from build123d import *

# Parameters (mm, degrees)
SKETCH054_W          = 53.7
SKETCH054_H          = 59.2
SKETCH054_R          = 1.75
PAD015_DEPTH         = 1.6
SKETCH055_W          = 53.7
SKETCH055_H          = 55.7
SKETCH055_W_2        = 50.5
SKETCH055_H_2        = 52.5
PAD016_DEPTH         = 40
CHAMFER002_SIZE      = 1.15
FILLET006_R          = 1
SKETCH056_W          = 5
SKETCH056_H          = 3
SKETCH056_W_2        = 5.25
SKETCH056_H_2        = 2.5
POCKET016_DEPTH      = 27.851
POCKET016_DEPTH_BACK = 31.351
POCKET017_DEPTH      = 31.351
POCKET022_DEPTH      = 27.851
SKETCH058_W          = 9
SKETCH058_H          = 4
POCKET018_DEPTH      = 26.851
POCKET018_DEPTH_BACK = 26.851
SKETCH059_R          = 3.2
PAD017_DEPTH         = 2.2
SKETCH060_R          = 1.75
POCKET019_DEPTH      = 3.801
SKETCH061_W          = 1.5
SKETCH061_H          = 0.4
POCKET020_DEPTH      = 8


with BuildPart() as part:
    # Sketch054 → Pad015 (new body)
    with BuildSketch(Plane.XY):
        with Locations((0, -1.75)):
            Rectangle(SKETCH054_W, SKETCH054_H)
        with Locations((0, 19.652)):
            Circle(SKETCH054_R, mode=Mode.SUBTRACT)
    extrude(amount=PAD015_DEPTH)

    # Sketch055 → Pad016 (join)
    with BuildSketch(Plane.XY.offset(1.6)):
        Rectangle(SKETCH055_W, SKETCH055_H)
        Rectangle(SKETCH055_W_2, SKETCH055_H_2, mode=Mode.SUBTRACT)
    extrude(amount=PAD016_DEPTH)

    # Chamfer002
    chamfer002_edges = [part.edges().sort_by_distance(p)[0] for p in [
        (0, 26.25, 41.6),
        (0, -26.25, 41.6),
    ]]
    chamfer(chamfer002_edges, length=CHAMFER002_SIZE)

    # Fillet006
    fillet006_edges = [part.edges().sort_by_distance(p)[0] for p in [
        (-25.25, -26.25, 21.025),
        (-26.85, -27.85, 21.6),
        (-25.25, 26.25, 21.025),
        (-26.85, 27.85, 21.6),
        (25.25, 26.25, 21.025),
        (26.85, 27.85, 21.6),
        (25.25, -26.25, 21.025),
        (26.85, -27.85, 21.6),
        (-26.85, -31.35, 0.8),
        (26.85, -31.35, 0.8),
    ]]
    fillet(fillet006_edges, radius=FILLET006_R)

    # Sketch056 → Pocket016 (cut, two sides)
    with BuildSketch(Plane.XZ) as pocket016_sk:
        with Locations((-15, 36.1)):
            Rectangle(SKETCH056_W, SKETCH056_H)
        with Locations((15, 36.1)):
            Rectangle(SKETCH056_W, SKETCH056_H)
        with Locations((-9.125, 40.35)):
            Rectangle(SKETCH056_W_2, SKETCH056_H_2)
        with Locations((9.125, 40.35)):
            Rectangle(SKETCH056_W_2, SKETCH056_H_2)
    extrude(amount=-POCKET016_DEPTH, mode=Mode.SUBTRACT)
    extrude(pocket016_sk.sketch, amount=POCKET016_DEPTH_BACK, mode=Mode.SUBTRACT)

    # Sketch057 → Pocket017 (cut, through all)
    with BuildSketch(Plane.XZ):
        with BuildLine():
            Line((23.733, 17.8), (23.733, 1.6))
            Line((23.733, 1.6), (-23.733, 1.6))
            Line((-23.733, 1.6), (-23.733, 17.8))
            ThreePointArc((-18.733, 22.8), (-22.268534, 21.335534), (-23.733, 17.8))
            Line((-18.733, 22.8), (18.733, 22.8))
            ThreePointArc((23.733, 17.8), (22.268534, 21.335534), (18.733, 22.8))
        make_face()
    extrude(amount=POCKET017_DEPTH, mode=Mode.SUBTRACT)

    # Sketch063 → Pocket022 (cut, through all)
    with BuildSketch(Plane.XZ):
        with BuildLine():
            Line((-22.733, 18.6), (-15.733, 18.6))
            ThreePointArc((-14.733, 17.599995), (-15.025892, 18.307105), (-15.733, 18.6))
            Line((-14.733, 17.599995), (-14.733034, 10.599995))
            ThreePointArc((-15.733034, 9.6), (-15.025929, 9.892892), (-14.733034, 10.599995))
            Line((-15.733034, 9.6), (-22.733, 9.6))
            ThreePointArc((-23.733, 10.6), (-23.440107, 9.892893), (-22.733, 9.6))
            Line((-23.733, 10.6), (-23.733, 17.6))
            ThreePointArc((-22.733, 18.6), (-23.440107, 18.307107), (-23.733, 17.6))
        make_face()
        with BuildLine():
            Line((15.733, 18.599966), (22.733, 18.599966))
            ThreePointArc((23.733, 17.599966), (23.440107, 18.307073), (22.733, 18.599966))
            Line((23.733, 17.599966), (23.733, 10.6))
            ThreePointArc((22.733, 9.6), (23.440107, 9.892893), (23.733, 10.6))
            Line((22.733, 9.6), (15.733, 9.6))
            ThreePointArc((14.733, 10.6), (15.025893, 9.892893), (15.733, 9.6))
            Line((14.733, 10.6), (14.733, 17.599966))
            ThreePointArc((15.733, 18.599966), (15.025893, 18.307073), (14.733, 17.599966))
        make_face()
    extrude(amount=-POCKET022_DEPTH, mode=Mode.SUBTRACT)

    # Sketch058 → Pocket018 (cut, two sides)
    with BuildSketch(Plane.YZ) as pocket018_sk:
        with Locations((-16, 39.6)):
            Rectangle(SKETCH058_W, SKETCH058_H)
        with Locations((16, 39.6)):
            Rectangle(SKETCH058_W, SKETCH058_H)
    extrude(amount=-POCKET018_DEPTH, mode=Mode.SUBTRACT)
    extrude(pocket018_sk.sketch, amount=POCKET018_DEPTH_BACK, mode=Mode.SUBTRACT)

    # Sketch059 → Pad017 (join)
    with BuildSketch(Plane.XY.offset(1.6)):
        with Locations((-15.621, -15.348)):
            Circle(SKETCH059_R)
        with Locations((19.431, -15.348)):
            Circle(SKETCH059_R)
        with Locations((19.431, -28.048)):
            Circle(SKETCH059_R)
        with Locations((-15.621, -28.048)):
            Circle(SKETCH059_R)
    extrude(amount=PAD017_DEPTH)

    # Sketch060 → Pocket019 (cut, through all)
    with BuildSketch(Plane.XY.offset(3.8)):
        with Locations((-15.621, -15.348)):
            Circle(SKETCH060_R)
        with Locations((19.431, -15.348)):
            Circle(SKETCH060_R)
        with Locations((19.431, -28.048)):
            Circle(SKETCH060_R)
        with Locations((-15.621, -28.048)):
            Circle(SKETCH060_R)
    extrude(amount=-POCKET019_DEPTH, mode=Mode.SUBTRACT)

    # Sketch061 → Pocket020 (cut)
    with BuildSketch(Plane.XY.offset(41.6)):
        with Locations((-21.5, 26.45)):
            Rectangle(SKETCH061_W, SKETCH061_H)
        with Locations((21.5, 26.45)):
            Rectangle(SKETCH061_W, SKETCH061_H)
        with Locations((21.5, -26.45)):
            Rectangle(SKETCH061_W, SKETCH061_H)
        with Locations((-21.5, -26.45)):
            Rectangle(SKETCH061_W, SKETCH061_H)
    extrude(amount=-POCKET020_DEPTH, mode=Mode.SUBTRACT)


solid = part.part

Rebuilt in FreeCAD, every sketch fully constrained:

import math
import FreeCAD as App
import Part
import Sketcher

V = App.Vector


def edges_at(feature, points):
    """Names of the edges that pass closest to the given points."""
    edges = feature.Shape.Edges
    near = lambda p: min(range(len(edges)), key=lambda i: edges[i].distToShape(Part.Vertex(*p))[0])
    return sorted({f"Edge{near(p) + 1}" for p in points})

doc = App.newDocument("Part")
body = doc.addObject("PartDesign::Body", "Body")

sketch1 = body.newObject("Sketcher::SketchObject", "Sketch")
sketch1.AttachmentSupport = (doc.getObject("XY_Plane"), [""])
sketch1.MapMode = "FlatFace"
sketch1.addGeometry([
    Part.LineSegment(V(-26.85, 27.85, 0), V(-26.85, -31.35, 0)),
    Part.LineSegment(V(-26.85, -31.35, 0), V(26.85, -31.35, 0)),
    Part.LineSegment(V(26.85, -31.35, 0), V(26.85, 27.85, 0)),
    Part.LineSegment(V(26.85, 27.85, 0), V(-26.85, 27.85, 0)),
    Part.Circle(V(0, 19.652, 0), V(0, 0, 1), 1.75),
], False)
sketch1.addConstraint([
    Sketcher.Constraint("Coincident", 0, 2, 1, 1),
    Sketcher.Constraint("Coincident", 1, 2, 2, 1),
    Sketcher.Constraint("Coincident", 2, 2, 3, 1),
    Sketcher.Constraint("Coincident", 3, 2, 0, 1),
    Sketcher.Constraint("Vertical", 0),
    Sketcher.Constraint("Horizontal", 1),
    Sketcher.Constraint("Vertical", 2),
    Sketcher.Constraint("Horizontal", 3),
    Sketcher.Constraint("PointOnObject", 4, 3, -2),
    Sketcher.Constraint("Diameter", 4, 3.5),
    Sketcher.Constraint("DistanceX", 1, 1, 1, 2, 53.7),
    Sketcher.Constraint("DistanceY", 0, 2, 0, 1, 59.2),
    Sketcher.Constraint("DistanceX", 0, 2, -1, 1, 26.85),
    Sketcher.Constraint("DistanceY", 0, 2, -1, 1, 31.35),
    Sketcher.Constraint("DistanceY", -1, 1, 4, 3, 19.652),
])
pad1 = body.newObject("PartDesign::Pad", "Pad")
pad1.Profile = sketch1
pad1.Length = 1.6

sketch2 = body.newObject("Sketcher::SketchObject", "Sketch001")
sketch2.AttachmentSupport = (doc.getObject("XY_Plane"), [""])
sketch2.MapMode = "FlatFace"
sketch2.AttachmentOffset = App.Placement(V(0, 0, 1.6), App.Rotation())
sketch2.addGeometry([
    Part.LineSegment(V(-26.85, 27.85, 0), V(-26.85, -27.85, 0)),
    Part.LineSegment(V(-26.85, -27.85, 0), V(26.85, -27.85, 0)),
    Part.LineSegment(V(26.85, -27.85, 0), V(26.85, 27.85, 0)),
    Part.LineSegment(V(26.85, 27.85, 0), V(-26.85, 27.85, 0)),
    Part.LineSegment(V(25.25, -26.25, 0), V(-25.25, -26.25, 0)),
    Part.LineSegment(V(-25.25, -26.25, 0), V(-25.25, 26.25, 0)),
    Part.LineSegment(V(-25.25, 26.25, 0), V(25.25, 26.25, 0)),
    Part.LineSegment(V(25.25, 26.25, 0), V(25.25, -26.25, 0)),
], False)
sketch2.addConstraint([
    Sketcher.Constraint("Coincident", 0, 2, 1, 1),
    Sketcher.Constraint("Coincident", 1, 2, 2, 1),
    Sketcher.Constraint("Coincident", 2, 2, 3, 1),
    Sketcher.Constraint("Coincident", 3, 2, 0, 1),
    Sketcher.Constraint("Coincident", 4, 2, 5, 1),
    Sketcher.Constraint("Coincident", 5, 2, 6, 1),
    Sketcher.Constraint("Coincident", 6, 2, 7, 1),
    Sketcher.Constraint("Coincident", 7, 2, 4, 1),
    Sketcher.Constraint("Vertical", 0),
    Sketcher.Constraint("Horizontal", 1),
    Sketcher.Constraint("Vertical", 2),
    Sketcher.Constraint("Horizontal", 3),
    Sketcher.Constraint("Horizontal", 4),
    Sketcher.Constraint("Vertical", 5),
    Sketcher.Constraint("Horizontal", 6),
    Sketcher.Constraint("Vertical", 7),
    Sketcher.Constraint("Symmetric", 0, 2, 2, 2, -1, 1),
    Sketcher.Constraint("Symmetric", 4, 2, 6, 2, -1, 1),
    Sketcher.Constraint("DistanceX", 1, 1, 1, 2, 53.7),
    Sketcher.Constraint("DistanceX", 4, 2, 4, 1, 50.5),
    Sketcher.Constraint("DistanceY", 0, 2, 0, 1, 55.7),
    Sketcher.Constraint("DistanceY", 5, 1, 5, 2, 52.5),
])
pad2 = body.newObject("PartDesign::Pad", "Pad001")
pad2.Profile = sketch2
pad2.Length = 40
doc.recompute()

chamfer = body.newObject("PartDesign::Chamfer", "Chamfer")
chamfer.Base = (pad2, edges_at(pad2, [(0, 26.25, 41.6), (0, -26.25, 41.6)]))
chamfer.Size = 1.15
doc.recompute()

fillet = body.newObject("PartDesign::Fillet", "Fillet")
fillet.Base = (chamfer, edges_at(chamfer, [
    (-25.25, -26.25, 21.025),
    (-26.85, -27.85, 21.6),
    (-25.25, 26.25, 21.025),
    (-26.85, 27.85, 20.8),
    (25.25, 26.25, 21.025),
    (26.85, 27.85, 20.8),
    (25.25, -26.25, 21.025),
    (26.85, -27.85, 21.6),
    (-26.85, -31.35, 0.8),
    (26.85, -31.35, 0.8),
]))
fillet.Radius = 1

sketch3 = body.newObject("Sketcher::SketchObject", "Sketch002")
sketch3.AttachmentSupport = (doc.getObject("XZ_Plane"), [""])
sketch3.MapMode = "FlatFace"
sketch3.addGeometry([
    Part.LineSegment(V(-17.5, 37.6, 0), V(-17.5, 34.6, 0)),
    Part.LineSegment(V(-17.5, 34.6, 0), V(-12.5, 34.6, 0)),
    Part.LineSegment(V(-12.5, 34.6, 0), V(-12.5, 37.6, 0)),
    Part.LineSegment(V(-12.5, 37.6, 0), V(-17.5, 37.6, 0)),
    Part.LineSegment(V(12.5, 37.6, 0), V(12.5, 34.6, 0)),
    Part.LineSegment(V(12.5, 34.6, 0), V(17.5, 34.6, 0)),
    Part.LineSegment(V(17.5, 34.6, 0), V(17.5, 37.6, 0)),
    Part.LineSegment(V(17.5, 37.6, 0), V(12.5, 37.6, 0)),
    Part.LineSegment(V(-11.75, 41.6, 0), V(-11.75, 39.1, 0)),
    Part.LineSegment(V(-11.75, 39.1, 0), V(-6.5, 39.1, 0)),
    Part.LineSegment(V(-6.5, 39.1, 0), V(-6.5, 41.6, 0)),
    Part.LineSegment(V(-6.5, 41.6, 0), V(-11.75, 41.6, 0)),
    Part.LineSegment(V(6.5, 41.6, 0), V(6.5, 39.1, 0)),
    Part.LineSegment(V(6.5, 39.1, 0), V(11.75, 39.1, 0)),
    Part.LineSegment(V(11.75, 39.1, 0), V(11.75, 41.6, 0)),
    Part.LineSegment(V(11.75, 41.6, 0), V(6.5, 41.6, 0)),
], False)
sketch3.addConstraint([
    Sketcher.Constraint("Coincident", 0, 2, 1, 1),
    Sketcher.Constraint("Coincident", 1, 2, 2, 1),
    Sketcher.Constraint("Coincident", 2, 2, 3, 1),
    Sketcher.Constraint("Coincident", 3, 2, 0, 1),
    Sketcher.Constraint("Coincident", 4, 2, 5, 1),
    Sketcher.Constraint("Coincident", 5, 2, 6, 1),
    Sketcher.Constraint("Coincident", 6, 2, 7, 1),
    Sketcher.Constraint("Coincident", 7, 2, 4, 1),
    Sketcher.Constraint("Coincident", 8, 2, 9, 1),
    Sketcher.Constraint("Coincident", 9, 2, 10, 1),
    Sketcher.Constraint("Coincident", 10, 2, 11, 1),
    Sketcher.Constraint("Coincident", 11, 2, 8, 1),
    Sketcher.Constraint("Coincident", 12, 2, 13, 1),
    Sketcher.Constraint("Coincident", 13, 2, 14, 1),
    Sketcher.Constraint("Coincident", 14, 2, 15, 1),
    Sketcher.Constraint("Coincident", 15, 2, 12, 1),
    Sketcher.Constraint("Vertical", 0),
    Sketcher.Constraint("Horizontal", 1),
    Sketcher.Constraint("Vertical", 2),
    Sketcher.Constraint("Horizontal", 3),
    Sketcher.Constraint("Vertical", 4),
    Sketcher.Constraint("Horizontal", 5),
    Sketcher.Constraint("Vertical", 6),
    Sketcher.Constraint("Horizontal", 7),
    Sketcher.Constraint("Vertical", 8),
    Sketcher.Constraint("Horizontal", 9),
    Sketcher.Constraint("Vertical", 10),
    Sketcher.Constraint("Horizontal", 11),
    Sketcher.Constraint("Vertical", 12),
    Sketcher.Constraint("Horizontal", 13),
    Sketcher.Constraint("Vertical", 14),
    Sketcher.Constraint("Horizontal", 15),
    Sketcher.Constraint("Symmetric", 1, 2, 4, 2, -2),
    Sketcher.Constraint("Symmetric", 3, 2, 6, 2, -2),
    Sketcher.Constraint("Symmetric", 9, 2, 12, 2, -2),
    Sketcher.Constraint("Symmetric", 11, 2, 14, 2, -2),
    Sketcher.Constraint("DistanceX", 1, 1, 1, 2, 5.0),
    Sketcher.Constraint("DistanceY", 0, 2, 0, 1, 3.0),
    Sketcher.Constraint("DistanceY", 8, 2, 8, 1, 2.5),
    Sketcher.Constraint("DistanceX", 1, 2, 4, 2, 25.0),
    Sketcher.Constraint("DistanceX", 2, 2, 9, 2, 6.0),
    Sketcher.Constraint("DistanceY", 2, 2, 10, 2, 4.0),
    Sketcher.Constraint("DistanceX", 9, 1, 9, 2, 5.25),
    Sketcher.Constraint("DistanceY", -1, 1, 0, 2, 34.6),
])
pocket1 = body.newObject("PartDesign::Pocket", "Pocket")
pocket1.Profile = sketch3
pocket1.Type = "ThroughAll"
pocket1.Midplane = True

sketch4 = body.newObject("Sketcher::SketchObject", "Sketch003")
sketch4.AttachmentSupport = (doc.getObject("XZ_Plane"), [""])
sketch4.MapMode = "FlatFace"
sketch4.addGeometry([
    Part.LineSegment(V(23.733, 1.6, 0), V(23.733, 17.8, 0)),
    Part.ArcOfCircle(Part.Circle(V(18.733, 17.8, 0), V(0, 0, 1), 5), math.radians(-0.000004), math.radians(90.000004)),
    Part.LineSegment(V(18.733, 22.8, 0), V(-18.733, 22.8, 0)),
    Part.ArcOfCircle(Part.Circle(V(-18.733, 17.8, 0), V(0, 0, 1), 5), math.radians(89.999996), math.radians(180.000004)),
    Part.LineSegment(V(-23.733, 17.8, 0), V(-23.733, 1.6, 0)),
    Part.LineSegment(V(-23.733, 1.6, 0), V(23.733, 1.6, 0)),
], False)
sketch4.addConstraint([
    Sketcher.Constraint("Tangent", 0, 2, 1, 1),
    Sketcher.Constraint("Tangent", 1, 2, 2, 1),
    Sketcher.Constraint("Tangent", 2, 2, 3, 1),
    Sketcher.Constraint("Tangent", 3, 2, 4, 1),
    Sketcher.Constraint("Coincident", 4, 2, 5, 1),
    Sketcher.Constraint("Coincident", 5, 2, 0, 1),
    Sketcher.Constraint("Vertical", 0),
    Sketcher.Constraint("Horizontal", 2),
    Sketcher.Constraint("Vertical", 4),
    Sketcher.Constraint("Horizontal", 5),
    Sketcher.Constraint("Equal", 1, 3),
    Sketcher.Constraint("Radius", 1, 5.0),
    Sketcher.Constraint("DistanceY", 0, 1, 0, 2, 16.2),
    Sketcher.Constraint("DistanceY", -1, 1, 1, 3, 17.8),
    Sketcher.Constraint("DistanceX", 2, 2, 2, 1, 37.466),
    Sketcher.Constraint("DistanceX", -1, 1, 1, 3, 18.733),
])
pocket2 = body.newObject("PartDesign::Pocket", "Pocket001")
pocket2.Profile = sketch4
pocket2.Type = "ThroughAll"
pocket2.Reversed = True

sketch5 = body.newObject("Sketcher::SketchObject", "Sketch004")
sketch5.AttachmentSupport = (doc.getObject("XZ_Plane"), [""])
sketch5.MapMode = "FlatFace"
sketch5.addGeometry([
    Part.LineSegment(V(-15.733, 18.6, 0), V(-22.733, 18.6, 0)),
    Part.ArcOfCircle(Part.Circle(V(-22.733001, 17.600001, 0), V(0, 0, 1), 0.999999), math.radians(89.999957), math.radians(180.000043)),
    Part.LineSegment(V(-23.733, 17.6, 0), V(-23.733, 10.6, 0)),
    Part.ArcOfCircle(Part.Circle(V(-22.733001, 10.599999, 0), V(0, 0, 1), 0.999999), math.radians(179.999957), math.radians(270.000043)),
    Part.LineSegment(V(-22.733, 9.6, 0), V(-15.733034, 9.6, 0)),
    Part.ArcOfCircle(Part.Circle(V(-15.733035, 10.600001, 0), V(0, 0, 1), 1.000001), math.radians(-89.999945), math.radians(-0.000341)),
    Part.LineSegment(V(-14.733034, 10.599995, 0), V(-14.733, 17.599995, 0)),
    Part.ArcOfCircle(Part.Circle(V(-15.733001, 17.599999, 0), V(0, 0, 1), 1.000001), math.radians(-0.000231), math.radians(89.999945)),
    Part.LineSegment(V(22.733, 18.599966, 0), V(15.733, 18.599966, 0)),
    Part.ArcOfCircle(Part.Circle(V(15.732999, 17.599967, 0), V(0, 0, 1), 0.999999), math.radians(89.999957), math.radians(180.000043)),
    Part.LineSegment(V(14.733, 17.599966, 0), V(14.733, 10.6, 0)),
    Part.ArcOfCircle(Part.Circle(V(15.732999, 10.599999, 0), V(0, 0, 1), 0.999999), math.radians(179.999957), math.radians(270.000043)),
    Part.LineSegment(V(15.733, 9.6, 0), V(22.733, 9.6, 0)),
    Part.ArcOfCircle(Part.Circle(V(22.733001, 10.599999, 0), V(0, 0, 1), 0.999999), math.radians(-90.000043), math.radians(0.000043)),
    Part.LineSegment(V(23.733, 10.6, 0), V(23.733, 17.599966, 0)),
    Part.ArcOfCircle(Part.Circle(V(22.733001, 17.599967, 0), V(0, 0, 1), 0.999999), math.radians(-0.000043), math.radians(90.000043)),
], False)
sketch5.addConstraint([
    Sketcher.Constraint("Tangent", 0, 2, 1, 1),
    Sketcher.Constraint("Tangent", 1, 2, 2, 1),
    Sketcher.Constraint("Tangent", 2, 2, 3, 1),
    Sketcher.Constraint("Tangent", 3, 2, 4, 1),
    Sketcher.Constraint("Tangent", 4, 2, 5, 1),
    Sketcher.Constraint("Tangent", 5, 2, 6, 1),
    Sketcher.Constraint("Tangent", 6, 2, 7, 1),
    Sketcher.Constraint("Tangent", 7, 2, 0, 1),
    Sketcher.Constraint("Tangent", 8, 2, 9, 1),
    Sketcher.Constraint("Tangent", 9, 2, 10, 1),
    Sketcher.Constraint("Tangent", 10, 2, 11, 1),
    Sketcher.Constraint("Tangent", 11, 2, 12, 1),
    Sketcher.Constraint("Tangent", 12, 2, 13, 1),
    Sketcher.Constraint("Tangent", 13, 2, 14, 1),
    Sketcher.Constraint("Tangent", 14, 2, 15, 1),
    Sketcher.Constraint("Tangent", 15, 2, 8, 1),
    Sketcher.Constraint("Horizontal", 0),
    Sketcher.Constraint("Vertical", 2),
    Sketcher.Constraint("Horizontal", 4),
    Sketcher.Constraint("Horizontal", 8),
    Sketcher.Constraint("Vertical", 10),
    Sketcher.Constraint("Horizontal", 12),
    Sketcher.Constraint("Vertical", 14),
    Sketcher.Constraint("Equal", 1, 3),
    Sketcher.Constraint("Equal", 3, 5),
    Sketcher.Constraint("Equal", 5, 7),
    Sketcher.Constraint("Equal", 7, 9),
    Sketcher.Constraint("Equal", 9, 11),
    Sketcher.Constraint("Equal", 11, 13),
    Sketcher.Constraint("Equal", 13, 15),
    Sketcher.Constraint("Symmetric", 3, 3, 13, 3, -2),
    Sketcher.Constraint("Equal", 0, 8),
    Sketcher.Constraint("Equal", 12, 2),
    Sketcher.Constraint("Equal", 4, 10),
    Sketcher.Constraint("Radius", 1, 0.999999),
    Sketcher.Constraint("DistanceX", 0, 2, 0, 1, 7.0),
    Sketcher.Constraint("DistanceY", -1, 1, 1, 3, 17.600001),
    Sketcher.Constraint("DistanceX", 1, 3, -1, 1, 22.733001),
    Sketcher.Constraint("DistanceX", 4, 1, 4, 2, 6.999966),
])
pocket3 = body.newObject("PartDesign::Pocket", "Pocket002")
pocket3.Profile = sketch5
pocket3.Type = "ThroughAll"

sketch6 = body.newObject("Sketcher::SketchObject", "Sketch005")
sketch6.AttachmentSupport = (doc.getObject("YZ_Plane"), [""])
sketch6.MapMode = "FlatFace"
sketch6.addGeometry([
    Part.LineSegment(V(-20.5, 41.6, 0), V(-20.5, 37.6, 0)),
    Part.LineSegment(V(-20.5, 37.6, 0), V(-11.5, 37.6, 0)),
    Part.LineSegment(V(-11.5, 37.6, 0), V(-11.5, 41.6, 0)),
    Part.LineSegment(V(-11.5, 41.6, 0), V(-20.5, 41.6, 0)),
    Part.LineSegment(V(11.5, 41.6, 0), V(11.5, 37.6, 0)),
    Part.LineSegment(V(11.5, 37.6, 0), V(20.5, 37.6, 0)),
    Part.LineSegment(V(20.5, 37.6, 0), V(20.5, 41.6, 0)),
    Part.LineSegment(V(20.5, 41.6, 0), V(11.5, 41.6, 0)),
], False)
sketch6.addConstraint([
    Sketcher.Constraint("Coincident", 0, 2, 1, 1),
    Sketcher.Constraint("Coincident", 1, 2, 2, 1),
    Sketcher.Constraint("Coincident", 2, 2, 3, 1),
    Sketcher.Constraint("Coincident", 3, 2, 0, 1),
    Sketcher.Constraint("Coincident", 4, 2, 5, 1),
    Sketcher.Constraint("Coincident", 5, 2, 6, 1),
    Sketcher.Constraint("Coincident", 6, 2, 7, 1),
    Sketcher.Constraint("Coincident", 7, 2, 4, 1),
    Sketcher.Constraint("Vertical", 0),
    Sketcher.Constraint("Horizontal", 1),
    Sketcher.Constraint("Vertical", 2),
    Sketcher.Constraint("Horizontal", 3),
    Sketcher.Constraint("Vertical", 4),
    Sketcher.Constraint("Horizontal", 5),
    Sketcher.Constraint("Vertical", 6),
    Sketcher.Constraint("Horizontal", 7),
    Sketcher.Constraint("Symmetric", 1, 2, 4, 2, -2),
    Sketcher.Constraint("Symmetric", 3, 2, 6, 2, -2),
    Sketcher.Constraint("DistanceX", 1, 1, 1, 2, 9.0),
    Sketcher.Constraint("DistanceY", 0, 2, 0, 1, 4.0),
    Sketcher.Constraint("DistanceX", 1, 2, 4, 2, 23.0),
    Sketcher.Constraint("DistanceY", -1, 1, 0, 2, 37.6),
])
pocket4 = body.newObject("PartDesign::Pocket", "Pocket003")
pocket4.Profile = sketch6
pocket4.Type = "ThroughAll"
pocket4.Midplane = True

sketch7 = body.newObject("Sketcher::SketchObject", "Sketch006")
sketch7.AttachmentSupport = (doc.getObject("XY_Plane"), [""])
sketch7.MapMode = "FlatFace"
sketch7.AttachmentOffset = App.Placement(V(0, 0, 1.6), App.Rotation())
sketch7.addGeometry([
    Part.Circle(V(-15.621, -15.348, 0), V(0, 0, 1), 3.2),
    Part.Circle(V(19.431, -15.348, 0), V(0, 0, 1), 3.2),
    Part.Circle(V(19.431, -28.048, 0), V(0, 0, 1), 3.2),
    Part.Circle(V(-15.621, -28.048, 0), V(0, 0, 1), 3.2),
], False)
sketch7.addConstraint([
    Sketcher.Constraint("Equal", 0, 1),
    Sketcher.Constraint("Equal", 1, 2),
    Sketcher.Constraint("Equal", 2, 3),
    Sketcher.Constraint("Horizontal", 0, 3, 1, 3),
    Sketcher.Constraint("Horizontal", 2, 3, 3, 3),
    Sketcher.Constraint("Vertical", 1, 3, 2, 3),
    Sketcher.Constraint("Vertical", 0, 3, 3, 3),
    Sketcher.Constraint("Diameter", 0, 6.4),
    Sketcher.Constraint("DistanceY", 2, 3, 1, 3, 12.7),
    Sketcher.Constraint("DistanceX", 0, 3, -1, 1, 15.621),
    Sketcher.Constraint("DistanceY", 0, 3, -1, 1, 15.348),
    Sketcher.Constraint("DistanceX", -1, 1, 1, 3, 19.431),
])
pad3 = body.newObject("PartDesign::Pad", "Pad002")
pad3.Profile = sketch7
pad3.Length = 2.2

sketch8 = body.newObject("Sketcher::SketchObject", "Sketch007")
sketch8.AttachmentSupport = (doc.getObject("XY_Plane"), [""])
sketch8.MapMode = "FlatFace"
sketch8.AttachmentOffset = App.Placement(V(0, 0, 3.8), App.Rotation())
sketch8.addGeometry([
    Part.Circle(V(-15.621, -15.348, 0), V(0, 0, 1), 1.75),
    Part.Circle(V(19.431, -15.348, 0), V(0, 0, 1), 1.75),
    Part.Circle(V(19.431, -28.048, 0), V(0, 0, 1), 1.75),
    Part.Circle(V(-15.621, -28.048, 0), V(0, 0, 1), 1.75),
], False)
sketch8.addConstraint([
    Sketcher.Constraint("Equal", 0, 1),
    Sketcher.Constraint("Equal", 1, 2),
    Sketcher.Constraint("Equal", 2, 3),
    Sketcher.Constraint("Horizontal", 0, 3, 1, 3),
    Sketcher.Constraint("Horizontal", 2, 3, 3, 3),
    Sketcher.Constraint("Vertical", 1, 3, 2, 3),
    Sketcher.Constraint("Vertical", 0, 3, 3, 3),
    Sketcher.Constraint("Diameter", 0, 3.5),
    Sketcher.Constraint("DistanceY", 2, 3, 1, 3, 12.7),
    Sketcher.Constraint("DistanceX", 0, 3, -1, 1, 15.621),
    Sketcher.Constraint("DistanceY", 0, 3, -1, 1, 15.348),
    Sketcher.Constraint("DistanceX", -1, 1, 1, 3, 19.431),
])
pocket5 = body.newObject("PartDesign::Pocket", "Pocket004")
pocket5.Profile = sketch8
pocket5.Type = "ThroughAll"

sketch9 = body.newObject("Sketcher::SketchObject", "Sketch008")
sketch9.AttachmentSupport = (doc.getObject("XY_Plane"), [""])
sketch9.MapMode = "FlatFace"
sketch9.AttachmentOffset = App.Placement(V(0, 0, 41.6), App.Rotation())
sketch9.addGeometry([
    Part.LineSegment(V(-22.25, 26.65, 0), V(-22.25, 26.25, 0)),
    Part.LineSegment(V(-22.25, 26.25, 0), V(-20.75, 26.25, 0)),
    Part.LineSegment(V(-20.75, 26.25, 0), V(-20.75, 26.65, 0)),
    Part.LineSegment(V(-20.75, 26.65, 0), V(-22.25, 26.65, 0)),
    Part.LineSegment(V(20.75, 26.65, 0), V(20.75, 26.25, 0)),
    Part.LineSegment(V(20.75, 26.25, 0), V(22.25, 26.25, 0)),
    Part.LineSegment(V(22.25, 26.25, 0), V(22.25, 26.65, 0)),
    Part.LineSegment(V(22.25, 26.65, 0), V(20.75, 26.65, 0)),
    Part.LineSegment(V(20.75, -26.25, 0), V(20.75, -26.65, 0)),
    Part.LineSegment(V(20.75, -26.65, 0), V(22.25, -26.65, 0)),
    Part.LineSegment(V(22.25, -26.65, 0), V(22.25, -26.25, 0)),
    Part.LineSegment(V(22.25, -26.25, 0), V(20.75, -26.25, 0)),
    Part.LineSegment(V(-22.25, -26.25, 0), V(-22.25, -26.65, 0)),
    Part.LineSegment(V(-22.25, -26.65, 0), V(-20.75, -26.65, 0)),
    Part.LineSegment(V(-20.75, -26.65, 0), V(-20.75, -26.25, 0)),
    Part.LineSegment(V(-20.75, -26.25, 0), V(-22.25, -26.25, 0)),
], False)
sketch9.addConstraint([
    Sketcher.Constraint("Coincident", 0, 2, 1, 1),
    Sketcher.Constraint("Coincident", 1, 2, 2, 1),
    Sketcher.Constraint("Coincident", 2, 2, 3, 1),
    Sketcher.Constraint("Coincident", 3, 2, 0, 1),
    Sketcher.Constraint("Coincident", 4, 2, 5, 1),
    Sketcher.Constraint("Coincident", 5, 2, 6, 1),
    Sketcher.Constraint("Coincident", 6, 2, 7, 1),
    Sketcher.Constraint("Coincident", 7, 2, 4, 1),
    Sketcher.Constraint("Coincident", 8, 2, 9, 1),
    Sketcher.Constraint("Coincident", 9, 2, 10, 1),
    Sketcher.Constraint("Coincident", 10, 2, 11, 1),
    Sketcher.Constraint("Coincident", 11, 2, 8, 1),
    Sketcher.Constraint("Coincident", 12, 2, 13, 1),
    Sketcher.Constraint("Coincident", 13, 2, 14, 1),
    Sketcher.Constraint("Coincident", 14, 2, 15, 1),
    Sketcher.Constraint("Coincident", 15, 2, 12, 1),
    Sketcher.Constraint("Vertical", 0),
    Sketcher.Constraint("Horizontal", 1),
    Sketcher.Constraint("Vertical", 2),
    Sketcher.Constraint("Horizontal", 3),
    Sketcher.Constraint("Vertical", 4),
    Sketcher.Constraint("Horizontal", 5),
    Sketcher.Constraint("Vertical", 6),
    Sketcher.Constraint("Horizontal", 7),
    Sketcher.Constraint("Vertical", 8),
    Sketcher.Constraint("Horizontal", 9),
    Sketcher.Constraint("Vertical", 10),
    Sketcher.Constraint("Horizontal", 11),
    Sketcher.Constraint("Vertical", 12),
    Sketcher.Constraint("Horizontal", 13),
    Sketcher.Constraint("Vertical", 14),
    Sketcher.Constraint("Horizontal", 15),
    Sketcher.Constraint("Symmetric", 2, 2, 8, 2, -1, 1),
    Sketcher.Constraint("Symmetric", 0, 2, 10, 2, -1, 1),
    Sketcher.Constraint("Symmetric", 6, 2, 12, 2, -1, 1),
    Sketcher.Constraint("Symmetric", 4, 2, 14, 2, -1, 1),
    Sketcher.Constraint("Symmetric", 1, 2, 4, 2, -2),
    Sketcher.Constraint("Symmetric", 3, 2, 6, 2, -2),
    Sketcher.Constraint("DistanceX", 1, 1, 1, 2, 1.5),
    Sketcher.Constraint("DistanceY", 0, 2, 0, 1, 0.4),
    Sketcher.Constraint("DistanceX", 0, 2, 4, 2, 43.0),
    Sketcher.Constraint("DistanceY", 8, 2, 4, 2, 52.9),
])
pocket6 = body.newObject("PartDesign::Pocket", "Pocket005")
pocket6.Profile = sketch9
pocket6.Length = 8

doc.recompute()
